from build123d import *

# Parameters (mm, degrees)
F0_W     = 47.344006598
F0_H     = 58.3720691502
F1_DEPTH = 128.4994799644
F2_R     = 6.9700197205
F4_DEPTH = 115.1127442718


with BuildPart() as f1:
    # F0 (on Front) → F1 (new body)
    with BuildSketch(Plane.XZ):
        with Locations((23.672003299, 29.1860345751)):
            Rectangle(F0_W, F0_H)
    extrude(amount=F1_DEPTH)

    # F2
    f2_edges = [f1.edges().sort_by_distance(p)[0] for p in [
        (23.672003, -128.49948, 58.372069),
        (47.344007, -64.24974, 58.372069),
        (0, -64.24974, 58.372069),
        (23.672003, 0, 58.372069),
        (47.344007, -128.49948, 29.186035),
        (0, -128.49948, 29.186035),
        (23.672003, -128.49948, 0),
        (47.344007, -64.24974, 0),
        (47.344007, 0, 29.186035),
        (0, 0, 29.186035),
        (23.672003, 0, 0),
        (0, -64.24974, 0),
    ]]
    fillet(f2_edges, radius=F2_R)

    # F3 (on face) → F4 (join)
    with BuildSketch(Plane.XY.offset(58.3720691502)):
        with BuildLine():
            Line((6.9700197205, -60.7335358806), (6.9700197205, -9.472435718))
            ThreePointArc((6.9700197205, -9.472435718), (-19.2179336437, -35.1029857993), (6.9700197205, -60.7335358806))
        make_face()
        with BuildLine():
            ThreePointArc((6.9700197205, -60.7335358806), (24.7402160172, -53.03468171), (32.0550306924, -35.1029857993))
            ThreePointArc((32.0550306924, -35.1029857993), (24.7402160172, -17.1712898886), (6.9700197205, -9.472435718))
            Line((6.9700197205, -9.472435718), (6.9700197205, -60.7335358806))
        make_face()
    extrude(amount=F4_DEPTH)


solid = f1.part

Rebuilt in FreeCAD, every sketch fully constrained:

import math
import FreeCAD as App
import Part
import Sketcher
from FreeCAD import Vector
Q = App.Units.Quantity

doc = App.newDocument("Part")
body = doc.addObject("PartDesign::Body", "Body")

# Sketch on XZ plane
sketch1 = body.newObject("Sketcher::SketchObject", "Sketch")
sketch1.AttachmentSupport = (doc.getObject("XZ_Plane"), [""])
sketch1.MapMode = "FlatFace"
sketch1.addGeometry([
    Part.LineSegment(Vector(0, 58, 0), Vector(0, 0, 0)),
    Part.LineSegment(Vector(0, 0, 0), Vector(47, 0, 0)),
    Part.LineSegment(Vector(47, 0, 0), Vector(47, 58, 0)),
    Part.LineSegment(Vector(47, 58, 0), Vector(0, 58, 0)),
], False)
sketch1.addConstraint([
    Sketcher.Constraint("Coincident", 0, 2, 1, 1),
    Sketcher.Constraint("Coincident", 1, 2, 2, 1),
    Sketcher.Constraint("Coincident", 2, 2, 3, 1),
    Sketcher.Constraint("Coincident", 3, 2, 0, 1),
    Sketcher.Constraint("Vertical", 0),
    Sketcher.Constraint("Horizontal", 1),
    Sketcher.Constraint("Vertical", 2),
    Sketcher.Constraint("Horizontal", 3),
    Sketcher.Constraint("Coincident", 0, 2, -1, 1),
    Sketcher.Constraint("DistanceY", 0, 2, 0, 1, Q("58.372069 mm")),
    Sketcher.Constraint("DistanceX", 1, 1, 1, 2, Q("47.344007 mm")),
])
pad1 = body.newObject("PartDesign::Pad", "Pad")
pad1.Profile = sketch1
pad1.Length = 128.49948
doc.recompute()

fillet = body.newObject("PartDesign::Fillet", "Fillet")
fillet.Base = (pad1, ["Edge1"])
fillet.UseAllEdges = True
fillet.Radius = 6.97002

# Sketch on XY plane
sketch2 = body.newObject("Sketcher::SketchObject", "Sketch001")
sketch2.AttachmentSupport = (doc.getObject("XY_Plane"), [""])
sketch2.MapMode = "FlatFace"
sketch2.AttachmentOffset = App.Placement(Vector(0, 0, 58.372069), App.Rotation())
sketch2.addGeometry([
    Part.ArcOfCircle(Part.Circle(Vector(6, -35, 0), Vector(0, 0, 1), 26), math.radians(89), math.radians(271)),
    Part.ArcOfCircle(Part.Circle(Vector(6, -35, 0), Vector(0, 0, 1), 26), math.radians(-89), math.radians(0)),
    Part.ArcOfCircle(Part.Circle(Vector(6, -35, 0), Vector(0, 0, 1), 26), math.radians(0), math.radians(89)),
], False)
sketch2.addConstraint([
    Sketcher.Constraint("Tangent", 0, 2, 1, 1),
    Sketcher.Constraint("Tangent", 1, 2, 2, 1),
    Sketcher.Constraint("Tangent", 2, 2, 0, 1),
    Sketcher.Constraint("Horizontal", 2, 3, 1, 2),
    Sketcher.Constraint("Vertical", 0, 2, 2, 2),
    Sketcher.Constraint("Radius", 0, Q("25.636482 mm")),
    Sketcher.Constraint("DistanceY", 0, 2, 2, 2, Q("51.2611 mm")),
    Sketcher.Constraint("DistanceX", -1, 1, 0, 3, Q("6.418549 mm")),
    Sketcher.Constraint("DistanceY", 0, 3, -1, 1, Q("35.102986 mm")),
])
pad2 = body.newObject("PartDesign::Pad", "Pad001")
pad2.Profile = sketch2
pad2.Length = 115.112744

doc.recompute()
